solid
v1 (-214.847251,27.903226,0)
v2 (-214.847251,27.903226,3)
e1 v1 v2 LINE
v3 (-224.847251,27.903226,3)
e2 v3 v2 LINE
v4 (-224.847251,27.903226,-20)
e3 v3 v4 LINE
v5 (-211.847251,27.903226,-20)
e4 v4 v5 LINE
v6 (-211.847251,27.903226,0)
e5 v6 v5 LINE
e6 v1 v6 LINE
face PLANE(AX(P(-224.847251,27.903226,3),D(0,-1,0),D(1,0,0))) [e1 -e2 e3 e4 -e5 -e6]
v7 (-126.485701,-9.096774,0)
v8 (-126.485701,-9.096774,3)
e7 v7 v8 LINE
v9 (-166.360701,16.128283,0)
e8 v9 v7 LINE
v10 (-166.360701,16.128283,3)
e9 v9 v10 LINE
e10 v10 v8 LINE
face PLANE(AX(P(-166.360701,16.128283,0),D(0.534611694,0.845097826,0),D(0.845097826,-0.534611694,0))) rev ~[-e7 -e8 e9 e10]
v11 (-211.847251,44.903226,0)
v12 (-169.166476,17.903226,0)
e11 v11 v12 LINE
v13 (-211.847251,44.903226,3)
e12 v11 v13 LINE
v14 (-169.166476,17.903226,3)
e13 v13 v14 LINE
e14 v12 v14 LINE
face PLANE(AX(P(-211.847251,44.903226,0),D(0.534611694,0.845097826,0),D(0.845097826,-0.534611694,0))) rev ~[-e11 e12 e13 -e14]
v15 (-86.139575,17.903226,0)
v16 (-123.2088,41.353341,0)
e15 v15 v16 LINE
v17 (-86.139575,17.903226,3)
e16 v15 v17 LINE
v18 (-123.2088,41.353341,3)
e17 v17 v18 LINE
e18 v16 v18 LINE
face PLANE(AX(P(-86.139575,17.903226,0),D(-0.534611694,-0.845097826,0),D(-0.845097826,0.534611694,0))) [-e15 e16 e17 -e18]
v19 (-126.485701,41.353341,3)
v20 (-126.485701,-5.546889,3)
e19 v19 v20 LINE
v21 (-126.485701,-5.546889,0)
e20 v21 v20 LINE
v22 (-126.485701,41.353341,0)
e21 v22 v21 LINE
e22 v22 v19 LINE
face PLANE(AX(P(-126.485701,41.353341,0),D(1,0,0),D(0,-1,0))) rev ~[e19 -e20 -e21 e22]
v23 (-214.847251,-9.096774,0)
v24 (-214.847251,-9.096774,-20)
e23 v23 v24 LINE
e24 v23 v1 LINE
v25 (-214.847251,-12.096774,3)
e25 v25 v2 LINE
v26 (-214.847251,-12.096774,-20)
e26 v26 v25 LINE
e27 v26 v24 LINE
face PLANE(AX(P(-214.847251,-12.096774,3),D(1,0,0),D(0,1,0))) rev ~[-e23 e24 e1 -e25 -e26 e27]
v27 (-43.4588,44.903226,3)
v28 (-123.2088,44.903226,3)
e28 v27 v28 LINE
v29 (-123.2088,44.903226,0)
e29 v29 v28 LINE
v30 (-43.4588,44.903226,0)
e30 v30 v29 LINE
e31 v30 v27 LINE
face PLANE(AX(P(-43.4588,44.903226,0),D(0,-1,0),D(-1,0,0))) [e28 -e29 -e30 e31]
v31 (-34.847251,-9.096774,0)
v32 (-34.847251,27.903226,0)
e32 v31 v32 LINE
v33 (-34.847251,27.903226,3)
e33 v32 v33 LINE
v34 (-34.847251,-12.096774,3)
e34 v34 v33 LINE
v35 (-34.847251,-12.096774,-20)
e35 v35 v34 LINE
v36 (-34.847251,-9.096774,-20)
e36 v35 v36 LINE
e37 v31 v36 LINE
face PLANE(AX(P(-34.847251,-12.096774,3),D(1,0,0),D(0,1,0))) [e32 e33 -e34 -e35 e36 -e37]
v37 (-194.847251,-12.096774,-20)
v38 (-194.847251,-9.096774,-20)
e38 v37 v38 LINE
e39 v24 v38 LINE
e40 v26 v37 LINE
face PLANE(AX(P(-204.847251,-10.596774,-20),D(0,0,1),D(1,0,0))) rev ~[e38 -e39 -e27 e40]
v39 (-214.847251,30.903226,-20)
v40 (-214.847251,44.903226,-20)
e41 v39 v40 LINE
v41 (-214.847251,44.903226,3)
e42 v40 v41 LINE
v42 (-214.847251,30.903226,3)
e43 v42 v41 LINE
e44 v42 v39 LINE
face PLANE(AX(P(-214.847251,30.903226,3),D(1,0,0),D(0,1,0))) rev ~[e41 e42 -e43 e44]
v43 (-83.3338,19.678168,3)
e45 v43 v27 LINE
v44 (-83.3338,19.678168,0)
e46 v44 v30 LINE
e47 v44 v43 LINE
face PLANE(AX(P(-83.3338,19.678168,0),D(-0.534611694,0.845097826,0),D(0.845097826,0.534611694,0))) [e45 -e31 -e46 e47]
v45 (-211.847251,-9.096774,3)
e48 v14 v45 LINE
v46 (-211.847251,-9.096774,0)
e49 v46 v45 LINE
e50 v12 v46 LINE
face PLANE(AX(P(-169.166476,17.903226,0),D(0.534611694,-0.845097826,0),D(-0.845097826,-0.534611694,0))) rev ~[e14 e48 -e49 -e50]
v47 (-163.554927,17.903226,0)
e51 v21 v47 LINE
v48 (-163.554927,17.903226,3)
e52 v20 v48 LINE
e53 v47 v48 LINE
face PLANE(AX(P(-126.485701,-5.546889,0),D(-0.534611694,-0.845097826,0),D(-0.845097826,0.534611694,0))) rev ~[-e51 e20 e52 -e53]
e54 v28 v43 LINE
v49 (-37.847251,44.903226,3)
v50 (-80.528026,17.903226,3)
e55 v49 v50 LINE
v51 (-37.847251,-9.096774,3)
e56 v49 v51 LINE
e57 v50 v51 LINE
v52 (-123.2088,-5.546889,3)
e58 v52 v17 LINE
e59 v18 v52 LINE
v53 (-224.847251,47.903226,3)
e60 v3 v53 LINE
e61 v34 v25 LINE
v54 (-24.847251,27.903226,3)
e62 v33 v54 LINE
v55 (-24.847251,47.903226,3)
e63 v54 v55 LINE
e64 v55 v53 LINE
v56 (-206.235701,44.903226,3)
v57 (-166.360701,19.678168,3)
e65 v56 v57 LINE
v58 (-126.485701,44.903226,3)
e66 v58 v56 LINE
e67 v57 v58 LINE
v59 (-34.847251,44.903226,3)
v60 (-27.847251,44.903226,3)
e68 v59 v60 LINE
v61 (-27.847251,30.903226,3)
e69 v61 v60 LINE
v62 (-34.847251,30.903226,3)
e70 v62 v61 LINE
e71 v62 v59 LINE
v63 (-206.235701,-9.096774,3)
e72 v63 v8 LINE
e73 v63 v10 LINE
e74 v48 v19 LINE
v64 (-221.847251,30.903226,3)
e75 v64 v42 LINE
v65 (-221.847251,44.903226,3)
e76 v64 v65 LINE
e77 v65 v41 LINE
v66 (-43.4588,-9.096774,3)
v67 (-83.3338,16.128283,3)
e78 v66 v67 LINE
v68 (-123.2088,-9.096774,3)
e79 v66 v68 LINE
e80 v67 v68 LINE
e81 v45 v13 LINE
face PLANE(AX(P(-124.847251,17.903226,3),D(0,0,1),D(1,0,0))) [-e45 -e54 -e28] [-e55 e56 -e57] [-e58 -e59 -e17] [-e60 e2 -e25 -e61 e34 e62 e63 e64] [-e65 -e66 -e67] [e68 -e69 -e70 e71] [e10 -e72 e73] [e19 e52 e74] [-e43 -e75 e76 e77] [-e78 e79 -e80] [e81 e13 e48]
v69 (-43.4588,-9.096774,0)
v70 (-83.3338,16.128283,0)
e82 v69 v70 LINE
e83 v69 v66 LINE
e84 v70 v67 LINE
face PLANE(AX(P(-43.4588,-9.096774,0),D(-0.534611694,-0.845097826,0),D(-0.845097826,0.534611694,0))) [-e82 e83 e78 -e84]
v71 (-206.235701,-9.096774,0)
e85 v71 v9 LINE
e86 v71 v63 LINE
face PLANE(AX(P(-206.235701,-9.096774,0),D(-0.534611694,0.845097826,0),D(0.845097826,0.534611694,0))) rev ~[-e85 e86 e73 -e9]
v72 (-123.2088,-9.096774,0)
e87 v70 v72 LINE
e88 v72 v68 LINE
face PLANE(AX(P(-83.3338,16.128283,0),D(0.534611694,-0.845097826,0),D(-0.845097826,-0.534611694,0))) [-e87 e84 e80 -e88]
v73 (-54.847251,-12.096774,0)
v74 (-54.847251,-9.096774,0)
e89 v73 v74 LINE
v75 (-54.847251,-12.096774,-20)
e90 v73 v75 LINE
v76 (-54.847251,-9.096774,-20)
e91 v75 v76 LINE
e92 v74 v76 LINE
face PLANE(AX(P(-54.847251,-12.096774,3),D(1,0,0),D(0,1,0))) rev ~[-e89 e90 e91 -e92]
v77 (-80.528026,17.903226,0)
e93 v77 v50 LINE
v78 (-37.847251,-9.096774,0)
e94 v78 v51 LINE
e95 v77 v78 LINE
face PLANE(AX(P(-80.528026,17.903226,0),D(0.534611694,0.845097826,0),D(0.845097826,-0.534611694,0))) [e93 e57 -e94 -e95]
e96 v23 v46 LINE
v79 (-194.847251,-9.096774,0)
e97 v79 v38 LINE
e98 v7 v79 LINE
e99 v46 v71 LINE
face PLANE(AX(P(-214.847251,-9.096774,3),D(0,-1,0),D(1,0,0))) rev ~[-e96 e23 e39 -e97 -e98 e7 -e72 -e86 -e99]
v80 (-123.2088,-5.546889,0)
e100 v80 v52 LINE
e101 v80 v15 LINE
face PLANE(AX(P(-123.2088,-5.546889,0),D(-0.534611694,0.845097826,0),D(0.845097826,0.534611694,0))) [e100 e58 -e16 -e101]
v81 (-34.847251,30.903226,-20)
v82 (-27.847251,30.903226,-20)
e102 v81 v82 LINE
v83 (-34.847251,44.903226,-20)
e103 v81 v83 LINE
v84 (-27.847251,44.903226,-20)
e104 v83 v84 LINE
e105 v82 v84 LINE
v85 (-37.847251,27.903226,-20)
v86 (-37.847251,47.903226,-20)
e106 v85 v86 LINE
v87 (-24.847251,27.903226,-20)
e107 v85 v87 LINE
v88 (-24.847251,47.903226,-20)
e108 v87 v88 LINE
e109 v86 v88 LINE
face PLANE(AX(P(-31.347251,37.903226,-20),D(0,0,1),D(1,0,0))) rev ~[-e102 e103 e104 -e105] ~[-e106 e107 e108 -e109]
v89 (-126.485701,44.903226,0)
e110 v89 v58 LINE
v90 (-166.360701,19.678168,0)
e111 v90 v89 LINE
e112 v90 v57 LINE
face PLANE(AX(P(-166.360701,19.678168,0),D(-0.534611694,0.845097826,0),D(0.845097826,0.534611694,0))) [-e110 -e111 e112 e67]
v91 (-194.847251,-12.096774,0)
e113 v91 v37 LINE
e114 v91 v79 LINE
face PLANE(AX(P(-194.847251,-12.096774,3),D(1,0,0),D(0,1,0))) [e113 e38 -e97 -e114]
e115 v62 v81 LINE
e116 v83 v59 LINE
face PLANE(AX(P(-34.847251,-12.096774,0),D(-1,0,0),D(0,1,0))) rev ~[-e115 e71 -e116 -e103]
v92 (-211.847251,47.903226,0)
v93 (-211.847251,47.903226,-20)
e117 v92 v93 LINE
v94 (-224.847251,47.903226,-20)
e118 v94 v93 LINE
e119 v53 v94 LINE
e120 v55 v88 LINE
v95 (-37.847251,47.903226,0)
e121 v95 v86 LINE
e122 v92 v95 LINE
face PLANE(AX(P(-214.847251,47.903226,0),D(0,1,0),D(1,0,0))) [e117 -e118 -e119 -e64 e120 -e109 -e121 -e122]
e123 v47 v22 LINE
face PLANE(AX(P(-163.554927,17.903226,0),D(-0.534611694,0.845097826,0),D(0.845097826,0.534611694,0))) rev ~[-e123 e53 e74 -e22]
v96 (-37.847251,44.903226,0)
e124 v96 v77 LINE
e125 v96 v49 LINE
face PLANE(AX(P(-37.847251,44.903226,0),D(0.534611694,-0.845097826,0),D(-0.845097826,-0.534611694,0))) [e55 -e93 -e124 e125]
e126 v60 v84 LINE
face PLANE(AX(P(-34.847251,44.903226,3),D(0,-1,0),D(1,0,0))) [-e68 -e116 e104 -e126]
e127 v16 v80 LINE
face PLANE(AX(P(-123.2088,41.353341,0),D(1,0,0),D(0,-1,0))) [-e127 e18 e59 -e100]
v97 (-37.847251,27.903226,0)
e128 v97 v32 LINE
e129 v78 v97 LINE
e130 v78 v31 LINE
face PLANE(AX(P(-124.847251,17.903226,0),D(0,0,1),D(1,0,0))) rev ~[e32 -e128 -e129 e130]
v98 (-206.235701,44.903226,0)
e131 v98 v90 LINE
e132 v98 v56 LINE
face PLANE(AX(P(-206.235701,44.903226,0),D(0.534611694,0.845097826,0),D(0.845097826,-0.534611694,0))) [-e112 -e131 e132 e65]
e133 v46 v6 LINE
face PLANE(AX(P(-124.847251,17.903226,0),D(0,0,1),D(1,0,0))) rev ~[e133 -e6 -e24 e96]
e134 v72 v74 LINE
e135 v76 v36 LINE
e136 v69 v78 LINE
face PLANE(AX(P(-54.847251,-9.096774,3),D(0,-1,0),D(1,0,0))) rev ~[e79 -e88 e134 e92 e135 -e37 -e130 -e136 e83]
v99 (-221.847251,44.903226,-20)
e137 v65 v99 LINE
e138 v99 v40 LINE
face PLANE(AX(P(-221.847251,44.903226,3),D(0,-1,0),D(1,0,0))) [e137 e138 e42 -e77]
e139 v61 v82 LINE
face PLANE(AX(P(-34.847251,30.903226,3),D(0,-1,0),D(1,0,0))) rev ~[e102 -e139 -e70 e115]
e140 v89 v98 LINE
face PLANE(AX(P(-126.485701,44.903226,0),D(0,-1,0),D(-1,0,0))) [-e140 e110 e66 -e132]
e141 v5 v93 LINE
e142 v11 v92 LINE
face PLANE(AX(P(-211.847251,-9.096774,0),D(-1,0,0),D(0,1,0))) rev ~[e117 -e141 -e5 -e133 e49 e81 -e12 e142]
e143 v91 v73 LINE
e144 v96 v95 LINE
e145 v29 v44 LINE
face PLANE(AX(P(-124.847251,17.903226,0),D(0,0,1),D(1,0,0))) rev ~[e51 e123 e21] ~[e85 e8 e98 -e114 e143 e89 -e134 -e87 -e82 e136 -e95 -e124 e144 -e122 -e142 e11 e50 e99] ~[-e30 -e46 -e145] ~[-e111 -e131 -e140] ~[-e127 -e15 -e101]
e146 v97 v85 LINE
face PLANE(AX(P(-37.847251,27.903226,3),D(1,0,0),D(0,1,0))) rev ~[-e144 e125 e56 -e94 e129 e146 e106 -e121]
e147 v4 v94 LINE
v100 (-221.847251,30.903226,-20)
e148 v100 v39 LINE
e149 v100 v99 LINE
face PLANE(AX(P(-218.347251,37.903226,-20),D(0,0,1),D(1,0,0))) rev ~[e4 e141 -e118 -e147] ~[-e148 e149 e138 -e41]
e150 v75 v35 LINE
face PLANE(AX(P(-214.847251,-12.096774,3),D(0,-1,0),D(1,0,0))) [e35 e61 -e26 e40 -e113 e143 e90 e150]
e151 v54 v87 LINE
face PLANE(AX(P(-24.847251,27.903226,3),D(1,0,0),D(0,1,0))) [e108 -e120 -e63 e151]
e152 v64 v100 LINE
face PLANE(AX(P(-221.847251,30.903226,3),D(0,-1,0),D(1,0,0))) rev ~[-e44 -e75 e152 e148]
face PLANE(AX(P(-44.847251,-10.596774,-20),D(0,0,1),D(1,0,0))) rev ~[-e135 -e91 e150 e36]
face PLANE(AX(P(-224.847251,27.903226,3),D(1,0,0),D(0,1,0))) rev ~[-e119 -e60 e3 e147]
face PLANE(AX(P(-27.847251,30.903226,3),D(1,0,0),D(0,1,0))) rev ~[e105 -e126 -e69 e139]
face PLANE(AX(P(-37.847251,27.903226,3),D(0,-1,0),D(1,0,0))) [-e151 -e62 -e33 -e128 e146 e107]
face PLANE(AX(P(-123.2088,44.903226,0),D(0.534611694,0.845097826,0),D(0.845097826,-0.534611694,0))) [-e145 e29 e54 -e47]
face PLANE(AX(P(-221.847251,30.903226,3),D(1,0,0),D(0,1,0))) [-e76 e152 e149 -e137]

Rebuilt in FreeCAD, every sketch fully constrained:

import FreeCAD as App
import Part
import Sketcher

doc = App.newDocument("Part")
body = doc.addObject("PartDesign::Body", "Body")

# Sketch on XY plane
sketch1 = body.newObject("Sketcher::SketchObject", "Sketch")
sketch1.AttachmentSupport = (doc.getObject("XY_Plane"), [""])
sketch1.MapMode = "FlatFace"
sketch1.addGeometry([
    Part.LineSegment(App.Vector(-215, 48, 0), App.Vector(-215, -12, 0)),  # 0
    Part.LineSegment(App.Vector(-215, -12, 0), App.Vector(-35, -12, 0)),  # 1
    Part.LineSegment(App.Vector(-35, -12, 0), App.Vector(-35, 48, 0)),  # 2
    Part.LineSegment(App.Vector(-35, 48, 0), App.Vector(-215, 48, 0)),  # 3
    Part.LineSegment(App.Vector(-126, -9, 0), App.Vector(-206, -9, 0)),  # 4
    Part.LineSegment(App.Vector(-206, -9, 0), App.Vector(-166, 16, 0)),  # 5
    Part.LineSegment(App.Vector(-166, 16, 0), App.Vector(-126, -9, 0)),  # 6
    Part.LineSegment(App.Vector(-83, 16, 0), App.Vector(-43, -9, 0)),  # 7
    Part.LineSegment(App.Vector(-43, -9, 0), App.Vector(-123, -9, 0)),  # 8
    Part.LineSegment(App.Vector(-123, -9, 0), App.Vector(-83, 16, 0)),  # 9
    Part.LineSegment(App.Vector(-212, -9, 0), App.Vector(-212, 45, 0)),  # 10
    Part.LineSegment(App.Vector(-212, 45, 0), App.Vector(-169, 18, 0)),  # 11
    Part.LineSegment(App.Vector(-169, 18, 0), App.Vector(-212, -9, 0)),  # 12
    Part.LineSegment(App.Vector(-126, 41, 0), App.Vector(-126, -6, 0)),  # 13
    Part.LineSegment(App.Vector(-126, -6, 0), App.Vector(-164, 18, 0)),  # 14
    Part.LineSegment(App.Vector(-164, 18, 0), App.Vector(-126, 41, 0)),  # 15
    Part.LineSegment(App.Vector(-126, 45, 0), App.Vector(-166, 20, 0)),  # 16
    Part.LineSegment(App.Vector(-166, 20, 0), App.Vector(-206, 45, 0)),  # 17
    Part.LineSegment(App.Vector(-206, 45, 0), App.Vector(-126, 45, 0)),  # 18
    Part.LineSegment(App.Vector(-123, -6, 0), App.Vector(-123, 41, 0)),  # 19
    Part.LineSegment(App.Vector(-123, 41, 0), App.Vector(-86, 18, 0)),  # 20
    Part.LineSegment(App.Vector(-86, 18, 0), App.Vector(-123, -6, 0)),  # 21
    Part.LineSegment(App.Vector(-81, 18, 0), App.Vector(-38, 45, 0)),  # 22
    Part.LineSegment(App.Vector(-38, 45, 0), App.Vector(-38, -9, 0)),  # 23
    Part.LineSegment(App.Vector(-38, -9, 0), App.Vector(-81, 18, 0)),  # 24
    Part.LineSegment(App.Vector(-123, 45, 0), App.Vector(-43, 45, 0)),  # 25
    Part.LineSegment(App.Vector(-43, 45, 0), App.Vector(-83, 20, 0)),  # 26
    Part.LineSegment(App.Vector(-83, 20, 0), App.Vector(-123, 45, 0)),  # 27
], False)
sketch1.addConstraint([
    Sketcher.Constraint("Coincident", 0, 2, 1, 1),
    Sketcher.Constraint("Coincident", 1, 2, 2, 1),
    Sketcher.Constraint("Coincident", 2, 2, 3, 1),
    Sketcher.Constraint("Coincident", 3, 2, 0, 1),
    Sketcher.Constraint("Coincident", 4, 2, 5, 1),
    Sketcher.Constraint("Coincident", 5, 2, 6, 1),
    Sketcher.Constraint("Coincident", 6, 2, 4, 1),
    Sketcher.Constraint("Coincident", 7, 2, 8, 1),
    Sketcher.Constraint("Coincident", 8, 2, 9, 1),
    Sketcher.Constraint("Coincident", 9, 2, 7, 1),
    Sketcher.Constraint("Coincident", 10, 2, 11, 1),
    Sketcher.Constraint("Coincident", 11, 2, 12, 1),
    Sketcher.Constraint("Coincident", 12, 2, 10, 1),
    Sketcher.Constraint("Coincident", 13, 2, 14, 1),
    Sketcher.Constraint("Coincident", 14, 2, 15, 1),
    Sketcher.Constraint("Coincident", 15, 2, 13, 1),
    Sketcher.Constraint("Coincident", 16, 2, 17, 1),
    Sketcher.Constraint("Coincident", 17, 2, 18, 1),
    Sketcher.Constraint("Coincident", 18, 2, 16, 1),
    Sketcher.Constraint("Coincident", 19, 2, 20, 1),
    Sketcher.Constraint("Coincident", 20, 2, 21, 1),
    Sketcher.Constraint("Coincident", 21, 2, 19, 1),
    Sketcher.Constraint("Coincident", 22, 2, 23, 1),
    Sketcher.Constraint("Coincident", 23, 2, 24, 1),
    Sketcher.Constraint("Coincident", 24, 2, 22, 1),
    Sketcher.Constraint("Coincident", 25, 2, 26, 1),
    Sketcher.Constraint("Coincident", 26, 2, 27, 1),
    Sketcher.Constraint("Coincident", 27, 2, 25, 1),
    Sketcher.Constraint("Vertical", 0),
    Sketcher.Constraint("Horizontal", 1),
    Sketcher.Constraint("Vertical", 2),
    Sketcher.Constraint("Horizontal", 3),
    Sketcher.Constraint("Horizontal", 4),
    Sketcher.Constraint("Horizontal", 8),
    Sketcher.Constraint("Vertical", 10),
    Sketcher.Constraint("Vertical", 13),
    Sketcher.Constraint("Horizontal", 18),
    Sketcher.Constraint("Vertical", 19),
    Sketcher.Constraint("Vertical", 23),
    Sketcher.Constraint("Horizontal", 25),
    Sketcher.Constraint("Parallel", 6, 7),
    Sketcher.Constraint("Parallel", 5, 9),
    Sketcher.Constraint("Parallel", 7, 11),
    Sketcher.Constraint("Parallel", 9, 12),
    Sketcher.Constraint("Parallel", 11, 14),
    Sketcher.Constraint("Parallel", 12, 15),
    Sketcher.Constraint("Parallel", 15, 16),
    Sketcher.Constraint("Parallel", 14, 17),
    Sketcher.Constraint("Parallel", 17, 20),
    Sketcher.Constraint("Parallel", 16, 21),
    Sketcher.Constraint("Parallel", 21, 22),
    Sketcher.Constraint("Parallel", 20, 24),
    Sketcher.Constraint("Parallel", 22, 26),
    Sketcher.Constraint("Parallel", 24, 27),
    Sketcher.Constraint("Horizontal", 6, 2, 7, 2),
    Sketcher.Constraint("Horizontal", 5, 2, 9, 2),
    Sketcher.Constraint("Horizontal", 8, 2, 12, 2),
    Sketcher.Constraint("Horizontal", 11, 2, 14, 2),
    Sketcher.Constraint("Horizontal", 10, 2, 17, 2),
    Sketcher.Constraint("Horizontal", 15, 2, 19, 2),
    Sketcher.Constraint("Horizontal", 14, 2, 20, 2),
    Sketcher.Constraint("Horizontal", 13, 2, 21, 2),
    Sketcher.Constraint("Horizontal", 18, 2, 22, 2),
    Sketcher.Constraint("Horizontal", 12, 2, 23, 2),
    Sketcher.Constraint("Horizontal", 22, 2, 25, 2),
    Sketcher.Constraint("Horizontal", 16, 2, 26, 2),
    Sketcher.Constraint("Vertical", 6, 2, 13, 2),
    Sketcher.Constraint("Vertical", 5, 2, 16, 2),
    Sketcher.Constraint("Vertical", 4, 2, 17, 2),
    Sketcher.Constraint("Vertical", 8, 2, 19, 2),
    Sketcher.Constraint("Vertical", 7, 2, 25, 2),
    Sketcher.Constraint("DistanceX", 1, 1, 1, 2, 180.0),
    Sketcher.Constraint("DistanceY", 0, 2, 0, 1, 60.0),
    Sketcher.Constraint("DistanceY", 10, 1, 10, 2, 54.0),
    Sketcher.Constraint("DistanceY", 0, 2, 4, 2, 3.0),
    Sketcher.Constraint("DistanceX", 3, 2, 10, 2, 3.0),
    Sketcher.Constraint("DistanceX", 22, 2, 2, 2, 3.0),
    Sketcher.Constraint("DistanceX", 4, 2, 4, 1, 79.75),
    Sketcher.Constraint("DistanceY", 13, 2, 13, 1, 46.90023),
    Sketcher.Constraint("DistanceX", 4, 2, -1, 1, 206.235701),
    Sketcher.Constraint("DistanceX", 7, 2, -1, 1, 43.4588),
    Sketcher.Constraint("DistanceX", 0, 2, -1, 1, 214.847251),
    Sketcher.Constraint("DistanceY", 13, 2, -1, 1, 5.546889),
    Sketcher.Constraint("DistanceY", -1, 1, 16, 2, 19.678168),
])
pad1 = body.newObject("PartDesign::Pad", "Pad")
pad1.Profile = sketch1
pad1.Length = 3

# Sketch on XY plane
sketch2 = body.newObject("Sketcher::SketchObject", "Sketch001")
sketch2.AttachmentSupport = (doc.getObject("XY_Plane"), [""])
sketch2.MapMode = "FlatFace"
sketch2.AttachmentOffset = App.Placement(App.Vector(0, 0, 3), App.Rotation())
sketch2.addGeometry([
    Part.LineSegment(App.Vector(-214.8, -9.1, 0), App.Vector(-214.8, -12.1, 0)),  # 0
    Part.LineSegment(App.Vector(-214.8, -12.1, 0), App.Vector(-194.8, -12.1, 0)),  # 1
    Part.LineSegment(App.Vector(-194.8, -12.1, 0), App.Vector(-194.8, -9.1, 0)),  # 2
    Part.LineSegment(App.Vector(-194.8, -9.1, 0), App.Vector(-214.8, -9.1, 0)),  # 3
    Part.LineSegment(App.Vector(-224.8, 47.9, 0), App.Vector(-224.8, 27.9, 0)),  # 4
    Part.LineSegment(App.Vector(-224.8, 27.9, 0), App.Vector(-211.8, 27.9, 0)),  # 5
    Part.LineSegment(App.Vector(-211.8, 27.9, 0), App.Vector(-211.8, 47.9, 0)),  # 6
    Part.LineSegment(App.Vector(-211.8, 47.9, 0), App.Vector(-224.8, 47.9, 0)),  # 7
    Part.LineSegment(App.Vector(-214.8, 30.9, 0), App.Vector(-221.8, 30.9, 0)),  # 8
    Part.LineSegment(App.Vector(-221.8, 30.9, 0), App.Vector(-221.8, 44.9, 0)),  # 9
    Part.LineSegment(App.Vector(-221.8, 44.9, 0), App.Vector(-214.8, 44.9, 0)),  # 10
    Part.LineSegment(App.Vector(-214.8, 44.9, 0), App.Vector(-214.8, 30.9, 0)),  # 11
    Part.LineSegment(App.Vector(-37.8, 47.9, 0), App.Vector(-37.8, 27.9, 0)),  # 12
    Part.LineSegment(App.Vector(-37.8, 27.9, 0), App.Vector(-24.8, 27.9, 0)),  # 13
    Part.LineSegment(App.Vector(-24.8, 27.9, 0), App.Vector(-24.8, 47.9, 0)),  # 14
    Part.LineSegment(App.Vector(-24.8, 47.9, 0), App.Vector(-37.8, 47.9, 0)),  # 15
    Part.LineSegment(App.Vector(-27.8, 30.9, 0), App.Vector(-34.8, 30.9, 0)),  # 16
    Part.LineSegment(App.Vector(-34.8, 30.9, 0), App.Vector(-34.8, 44.9, 0)),  # 17
    Part.LineSegment(App.Vector(-34.8, 44.9, 0), App.Vector(-27.8, 44.9, 0)),  # 18
    Part.LineSegment(App.Vector(-27.8, 44.9, 0), App.Vector(-27.8, 30.9, 0)),  # 19
    Part.LineSegment(App.Vector(-54.8, -9.1, 0), App.Vector(-54.8, -12.1, 0)),  # 20
    Part.LineSegment(App.Vector(-54.8, -12.1, 0), App.Vector(-34.8, -12.1, 0)),  # 21
    Part.LineSegment(App.Vector(-34.8, -12.1, 0), App.Vector(-34.8, -9.1, 0)),  # 22
    Part.LineSegment(App.Vector(-34.8, -9.1, 0), App.Vector(-54.8, -9.1, 0)),  # 23
], False)
sketch2.addConstraint([
    Sketcher.Constraint("Coincident", 0, 2, 1, 1),
    Sketcher.Constraint("Coincident", 1, 2, 2, 1),
    Sketcher.Constraint("Coincident", 2, 2, 3, 1),
    Sketcher.Constraint("Coincident", 3, 2, 0, 1),
    Sketcher.Constraint("Coincident", 4, 2, 5, 1),
    Sketcher.Constraint("Coincident", 5, 2, 6, 1),
    Sketcher.Constraint("Coincident", 6, 2, 7, 1),
    Sketcher.Constraint("Coincident", 7, 2, 4, 1),
    Sketcher.Constraint("Coincident", 8, 2, 9, 1),
    Sketcher.Constraint("Coincident", 9, 2, 10, 1),
    Sketcher.Constraint("Coincident", 10, 2, 11, 1),
    Sketcher.Constraint("Coincident", 11, 2, 8, 1),
    Sketcher.Constraint("Coincident", 12, 2, 13, 1),
    Sketcher.Constraint("Coincident", 13, 2, 14, 1),
    Sketcher.Constraint("Coincident", 14, 2, 15, 1),
    Sketcher.Constraint("Coincident", 15, 2, 12, 1),
    Sketcher.Constraint("Coincident", 16, 2, 17, 1),
    Sketcher.Constraint("Coincident", 17, 2, 18, 1),
    Sketcher.Constraint("Coincident", 18, 2, 19, 1),
    Sketcher.Constraint("Coincident", 19, 2, 16, 1),
    Sketcher.Constraint("Coincident", 20, 2, 21, 1),
    Sketcher.Constraint("Coincident", 21, 2, 22, 1),
    Sketcher.Constraint("Coincident", 22, 2, 23, 1),
    Sketcher.Constraint("Coincident", 23, 2, 20, 1),
    Sketcher.Constraint("Vertical", 0),
    Sketcher.Constraint("Horizontal", 1),
    Sketcher.Constraint("Vertical", 2),
    Sketcher.Constraint("Horizontal", 3),
    Sketcher.Constraint("Vertical", 4),
    Sketcher.Constraint("Horizontal", 5),
    Sketcher.Constraint("Vertical", 6),
    Sketcher.Constraint("Horizontal", 7),
    Sketcher.Constraint("Horizontal", 8),
    Sketcher.Constraint("Vertical", 9),
    Sketcher.Constraint("Horizontal", 10),
    Sketcher.Constraint("Vertical", 11),
    Sketcher.Constraint("Vertical", 12),
    Sketcher.Constraint("Horizontal", 13),
    Sketcher.Constraint("Vertical", 14),
    Sketcher.Constraint("Horizontal", 15),
    Sketcher.Constraint("Horizontal", 16),
    Sketcher.Constraint("Vertical", 17),
    Sketcher.Constraint("Horizontal", 18),
    Sketcher.Constraint("Vertical", 19),
    Sketcher.Constraint("Vertical", 20),
    Sketcher.Constraint("Horizontal", 21),
    Sketcher.Constraint("Vertical", 22),
    Sketcher.Constraint("Horizontal", 23),
    Sketcher.Constraint("Horizontal", 5, 2, 12, 2),
    Sketcher.Constraint("Horizontal", 7, 2, 14, 2),
    Sketcher.Constraint("Horizontal", 11, 2, 16, 2),
    Sketcher.Constraint("Horizontal", 10, 2, 17, 2),
    Sketcher.Constraint("Horizontal", 1, 2, 20, 2),
    Sketcher.Constraint("Horizontal", 3, 2, 22, 2),
    Sketcher.Constraint("Vertical", 3, 2, 10, 2),
    Sketcher.Constraint("Vertical", 17, 2, 21, 2),
    Sketcher.Constraint("Equal", 7, 13),
    Sketcher.Constraint("Equal", 10, 16),
    Sketcher.Constraint("Equal", 3, 21),
    Sketcher.Constraint("Equal", 23, 4),
    Sketcher.Constraint("DistanceX", 1, 1, 1, 2, 20.0),
    Sketcher.Constraint("DistanceX", 5, 1, 5, 2, 13.0),
    Sketcher.Constraint("DistanceX", 8, 2, 8, 1, 7.0),
    Sketcher.Constraint("DistanceY", 0, 2, 0, 1, 3.0),
    Sketcher.Constraint("DistanceY", 9, 1, 9, 2, 14.0),
    Sketcher.Constraint("DistanceX", 4, 2, 3, 2, 10.0),
    Sketcher.Constraint("DistanceY", 3, 2, 4, 2, 37.0),
    Sketcher.Constraint("DistanceY", 4, 2, 8, 2, 3.0),
    Sketcher.Constraint("DistanceX", 2, 2, 12, 2, 157.0),
    Sketcher.Constraint("DistanceX", 12, 2, 16, 2, 3.0),
    Sketcher.Constraint("DistanceX", 0, 2, -1, 1, 214.847251),
    Sketcher.Constraint("DistanceY", 0, 2, -1, 1, 12.096774),
])
pad2 = body.newObject("PartDesign::Pad", "Pad001")
pad2.Profile = sketch2
pad2.Length = 23
pad2.Reversed = True

doc.recompute()
